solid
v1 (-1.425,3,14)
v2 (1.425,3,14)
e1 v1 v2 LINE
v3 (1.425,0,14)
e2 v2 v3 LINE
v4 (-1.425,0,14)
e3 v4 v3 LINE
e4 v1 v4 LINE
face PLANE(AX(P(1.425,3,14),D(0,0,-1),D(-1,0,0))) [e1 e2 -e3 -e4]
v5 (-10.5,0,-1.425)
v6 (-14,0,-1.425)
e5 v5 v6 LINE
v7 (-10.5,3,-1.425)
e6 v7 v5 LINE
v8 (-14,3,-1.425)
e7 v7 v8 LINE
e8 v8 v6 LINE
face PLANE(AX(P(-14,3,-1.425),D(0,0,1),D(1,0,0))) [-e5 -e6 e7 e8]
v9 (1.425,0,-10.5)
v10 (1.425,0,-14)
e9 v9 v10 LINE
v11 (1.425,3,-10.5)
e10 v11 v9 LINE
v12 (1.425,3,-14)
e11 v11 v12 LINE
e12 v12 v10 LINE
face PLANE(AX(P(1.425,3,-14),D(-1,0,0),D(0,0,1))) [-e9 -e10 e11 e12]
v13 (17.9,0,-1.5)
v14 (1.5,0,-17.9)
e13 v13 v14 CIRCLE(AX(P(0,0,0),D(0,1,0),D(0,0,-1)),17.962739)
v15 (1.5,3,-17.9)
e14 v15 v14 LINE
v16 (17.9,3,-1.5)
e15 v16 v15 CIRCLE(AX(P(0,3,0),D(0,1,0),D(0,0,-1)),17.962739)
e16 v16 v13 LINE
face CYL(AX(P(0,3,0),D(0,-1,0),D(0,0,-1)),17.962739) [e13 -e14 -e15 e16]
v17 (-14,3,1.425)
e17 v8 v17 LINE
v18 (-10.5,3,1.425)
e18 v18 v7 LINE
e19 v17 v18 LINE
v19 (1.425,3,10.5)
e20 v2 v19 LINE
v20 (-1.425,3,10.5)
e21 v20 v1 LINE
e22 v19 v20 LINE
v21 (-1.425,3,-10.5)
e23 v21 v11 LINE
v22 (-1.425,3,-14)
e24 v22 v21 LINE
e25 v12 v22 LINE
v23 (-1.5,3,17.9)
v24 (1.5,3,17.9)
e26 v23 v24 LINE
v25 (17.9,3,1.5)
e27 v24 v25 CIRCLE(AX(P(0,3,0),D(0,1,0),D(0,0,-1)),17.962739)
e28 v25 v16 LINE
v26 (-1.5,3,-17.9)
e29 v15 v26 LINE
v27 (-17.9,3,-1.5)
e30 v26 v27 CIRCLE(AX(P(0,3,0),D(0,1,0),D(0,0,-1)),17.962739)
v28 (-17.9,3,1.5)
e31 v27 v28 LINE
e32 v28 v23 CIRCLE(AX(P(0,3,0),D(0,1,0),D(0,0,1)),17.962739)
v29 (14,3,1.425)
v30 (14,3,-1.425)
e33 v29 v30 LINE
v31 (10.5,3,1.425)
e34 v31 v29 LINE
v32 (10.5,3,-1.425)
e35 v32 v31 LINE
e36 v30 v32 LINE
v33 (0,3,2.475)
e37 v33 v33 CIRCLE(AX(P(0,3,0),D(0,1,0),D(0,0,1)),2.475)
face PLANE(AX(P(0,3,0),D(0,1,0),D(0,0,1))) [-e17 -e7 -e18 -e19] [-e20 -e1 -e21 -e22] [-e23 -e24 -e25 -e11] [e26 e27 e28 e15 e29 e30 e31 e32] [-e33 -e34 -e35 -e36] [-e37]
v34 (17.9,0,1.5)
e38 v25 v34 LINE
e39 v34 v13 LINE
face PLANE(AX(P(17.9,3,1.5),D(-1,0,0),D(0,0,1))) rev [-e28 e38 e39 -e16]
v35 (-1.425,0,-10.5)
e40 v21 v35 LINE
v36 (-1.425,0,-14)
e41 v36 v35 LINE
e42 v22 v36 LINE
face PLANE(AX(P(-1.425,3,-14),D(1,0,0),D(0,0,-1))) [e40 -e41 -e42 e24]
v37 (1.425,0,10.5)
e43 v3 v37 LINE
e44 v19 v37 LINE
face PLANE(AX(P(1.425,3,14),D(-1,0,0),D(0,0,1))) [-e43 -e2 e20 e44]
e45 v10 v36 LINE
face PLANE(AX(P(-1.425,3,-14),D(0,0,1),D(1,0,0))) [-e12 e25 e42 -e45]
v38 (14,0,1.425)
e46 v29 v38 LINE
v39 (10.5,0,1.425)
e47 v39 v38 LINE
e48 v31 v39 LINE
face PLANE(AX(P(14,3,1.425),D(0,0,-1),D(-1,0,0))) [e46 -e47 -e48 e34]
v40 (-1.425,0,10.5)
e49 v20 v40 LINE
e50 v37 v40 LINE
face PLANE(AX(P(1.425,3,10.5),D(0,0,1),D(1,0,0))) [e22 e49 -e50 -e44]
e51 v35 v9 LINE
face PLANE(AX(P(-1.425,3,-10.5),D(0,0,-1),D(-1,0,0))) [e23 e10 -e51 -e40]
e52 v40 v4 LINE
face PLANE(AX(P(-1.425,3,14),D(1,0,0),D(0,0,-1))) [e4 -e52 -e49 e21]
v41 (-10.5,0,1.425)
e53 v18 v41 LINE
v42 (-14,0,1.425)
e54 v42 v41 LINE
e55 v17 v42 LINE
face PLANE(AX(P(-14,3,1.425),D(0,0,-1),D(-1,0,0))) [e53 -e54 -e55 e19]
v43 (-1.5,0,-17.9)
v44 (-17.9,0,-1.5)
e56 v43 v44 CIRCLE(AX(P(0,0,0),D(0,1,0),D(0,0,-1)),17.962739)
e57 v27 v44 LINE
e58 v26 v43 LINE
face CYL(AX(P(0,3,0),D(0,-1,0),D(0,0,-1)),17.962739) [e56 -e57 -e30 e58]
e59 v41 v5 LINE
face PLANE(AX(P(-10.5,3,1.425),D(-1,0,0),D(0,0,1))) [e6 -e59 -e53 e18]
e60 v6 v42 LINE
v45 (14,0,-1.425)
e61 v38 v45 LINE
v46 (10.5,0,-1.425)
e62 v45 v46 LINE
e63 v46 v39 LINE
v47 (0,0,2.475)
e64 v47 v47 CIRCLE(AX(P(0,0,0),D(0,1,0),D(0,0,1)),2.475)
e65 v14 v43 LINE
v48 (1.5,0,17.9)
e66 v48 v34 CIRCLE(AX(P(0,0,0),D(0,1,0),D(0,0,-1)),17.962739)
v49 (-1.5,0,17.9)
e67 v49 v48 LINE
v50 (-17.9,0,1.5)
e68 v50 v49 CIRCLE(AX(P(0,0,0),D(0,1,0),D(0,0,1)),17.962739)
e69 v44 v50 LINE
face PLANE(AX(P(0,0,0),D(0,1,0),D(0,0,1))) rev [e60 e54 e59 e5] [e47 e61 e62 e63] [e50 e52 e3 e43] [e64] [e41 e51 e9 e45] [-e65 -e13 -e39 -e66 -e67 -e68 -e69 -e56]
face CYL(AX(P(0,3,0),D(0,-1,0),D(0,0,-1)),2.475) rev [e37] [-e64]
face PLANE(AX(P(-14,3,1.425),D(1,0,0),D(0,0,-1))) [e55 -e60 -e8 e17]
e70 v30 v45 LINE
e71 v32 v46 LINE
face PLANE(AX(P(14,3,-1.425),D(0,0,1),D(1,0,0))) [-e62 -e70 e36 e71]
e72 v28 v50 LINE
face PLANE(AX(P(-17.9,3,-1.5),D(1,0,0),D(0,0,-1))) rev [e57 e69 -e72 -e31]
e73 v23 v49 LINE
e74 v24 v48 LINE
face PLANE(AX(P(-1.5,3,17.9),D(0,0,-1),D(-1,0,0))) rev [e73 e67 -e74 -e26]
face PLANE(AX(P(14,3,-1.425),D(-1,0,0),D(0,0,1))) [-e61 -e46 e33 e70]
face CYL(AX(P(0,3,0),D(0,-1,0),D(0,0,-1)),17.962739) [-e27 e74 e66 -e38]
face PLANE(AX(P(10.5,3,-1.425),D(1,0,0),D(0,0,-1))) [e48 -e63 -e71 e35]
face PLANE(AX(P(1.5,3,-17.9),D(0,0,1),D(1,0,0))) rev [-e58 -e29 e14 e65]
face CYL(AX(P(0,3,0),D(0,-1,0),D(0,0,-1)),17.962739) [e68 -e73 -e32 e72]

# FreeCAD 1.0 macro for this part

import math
import FreeCAD as App
import Part
import Sketcher

doc = App.newDocument("Part")
params = doc.addObject("Spreadsheet::Sheet", "Params")
for row, (alias, value) in enumerate([
    ("sketch1_diameter", "4.95 mm"),
    ("sketch1_width", "3 mm"),
    ("sketch1_width2", "3.5 mm"),
    ("sketch1_width3", "2.85 mm"),
    ("pad1_length", "3 mm"),
], start=1):
    params.set(f"A{row}", alias)
    params.set(f"B{row}", "=" + value)
    params.setAlias(f"B{row}", alias)

body = doc.addObject("PartDesign::Body", "Body")

sketch1 = doc.addObject("Sketcher::SketchObject", "Sketch")
body.addObject(sketch1)
sketch1.AttachmentSupport = (doc.XZ_Plane, [""])
sketch1.MapMode = "FlatFace"
sketch1.addGeometry(Part.LineSegment(App.Vector(-1.5, 17.9, 0), App.Vector(1.5, 17.9, 0)), False)
sketch1.addGeometry(Part.ArcOfCircle(Part.Circle(App.Vector(0, 0, 0), App.Vector(0, 0, 1), 18), math.radians(5), math.radians(85)), False)
sketch1.addGeometry(Part.LineSegment(App.Vector(17.9, 1.5, 0), App.Vector(17.9, -1.5, 0)), False)
sketch1.addGeometry(Part.ArcOfCircle(Part.Circle(App.Vector(0, 0, 0), App.Vector(0, 0, 1), 18), math.radians(-85), math.radians(-5)), False)
sketch1.addGeometry(Part.LineSegment(App.Vector(1.5, -17.9, 0), App.Vector(-1.5, -17.9, 0)), False)
sketch1.addGeometry(Part.ArcOfCircle(Part.Circle(App.Vector(0, 0, 0), App.Vector(0, 0, 1), 18), math.radians(-175), math.radians(-95)), False)
sketch1.addGeometry(Part.LineSegment(App.Vector(-17.9, -1.5, 0), App.Vector(-17.9, 1.5, 0)), False)
sketch1.addGeometry(Part.ArcOfCircle(Part.Circle(App.Vector(0, 0, 0), App.Vector(0, 0, 1), 18), math.radians(95), math.radians(175)), False)
sketch1.addGeometry(Part.LineSegment(App.Vector(1.4, 14, 0), App.Vector(-1.4, 14, 0)), False)
sketch1.addGeometry(Part.LineSegment(App.Vector(-1.4, 14, 0), App.Vector(-1.4, 10.5, 0)), False)
sketch1.addGeometry(Part.LineSegment(App.Vector(-1.4, 10.5, 0), App.Vector(1.4, 10.5, 0)), False)
sketch1.addGeometry(Part.LineSegment(App.Vector(1.4, 10.5, 0), App.Vector(1.4, 14, 0)), False)
sketch1.addGeometry(Part.LineSegment(App.Vector(-10.5, 1.4, 0), App.Vector(-14, 1.4, 0)), False)
sketch1.addGeometry(Part.LineSegment(App.Vector(-14, 1.4, 0), App.Vector(-14, -1.4, 0)), False)
sketch1.addGeometry(Part.LineSegment(App.Vector(-14, -1.4, 0), App.Vector(-10.5, -1.4, 0)), False)
sketch1.addGeometry(Part.LineSegment(App.Vector(-10.5, -1.4, 0), App.Vector(-10.5, 1.4, 0)), False)
sketch1.addGeometry(Part.Circle(App.Vector(0, 0, 0), App.Vector(0, 0, 1), 2.5), False)
sketch1.addGeometry(Part.LineSegment(App.Vector(14, 1.4, 0), App.Vector(10.5, 1.4, 0)), False)
sketch1.addGeometry(Part.LineSegment(App.Vector(10.5, 1.4, 0), App.Vector(10.5, -1.4, 0)), False)
sketch1.addGeometry(Part.LineSegment(App.Vector(10.5, -1.4, 0), App.Vector(14, -1.4, 0)), False)
sketch1.addGeometry(Part.LineSegment(App.Vector(14, -1.4, 0), App.Vector(14, 1.4, 0)), False)
sketch1.addGeometry(Part.LineSegment(App.Vector(1.4, -10.5, 0), App.Vector(-1.4, -10.5, 0)), False)
sketch1.addGeometry(Part.LineSegment(App.Vector(-1.4, -10.5, 0), App.Vector(-1.4, -14, 0)), False)
sketch1.addGeometry(Part.LineSegment(App.Vector(-1.4, -14, 0), App.Vector(1.4, -14, 0)), False)
sketch1.addGeometry(Part.LineSegment(App.Vector(1.4, -14, 0), App.Vector(1.4, -10.5, 0)), False)
sketch1.addConstraint(Sketcher.Constraint("Coincident", 0, 2, 1, 2))
sketch1.addConstraint(Sketcher.Constraint("Coincident", 1, 1, 2, 1))
sketch1.addConstraint(Sketcher.Constraint("Coincident", 2, 2, 3, 2))
sketch1.addConstraint(Sketcher.Constraint("Coincident", 3, 1, 4, 1))
sketch1.addConstraint(Sketcher.Constraint("Coincident", 4, 2, 5, 2))
sketch1.addConstraint(Sketcher.Constraint("Coincident", 5, 1, 6, 1))
sketch1.addConstraint(Sketcher.Constraint("Coincident", 6, 2, 7, 2))
sketch1.addConstraint(Sketcher.Constraint("Coincident", 7, 1, 0, 1))
sketch1.addConstraint(Sketcher.Constraint("Coincident", 8, 2, 9, 1))
sketch1.addConstraint(Sketcher.Constraint("Coincident", 9, 2, 10, 1))
sketch1.addConstraint(Sketcher.Constraint("Coincident", 10, 2, 11, 1))
sketch1.addConstraint(Sketcher.Constraint("Coincident", 11, 2, 8, 1))
sketch1.addConstraint(Sketcher.Constraint("Coincident", 12, 2, 13, 1))
sketch1.addConstraint(Sketcher.Constraint("Coincident", 13, 2, 14, 1))
sketch1.addConstraint(Sketcher.Constraint("Coincident", 14, 2, 15, 1))
sketch1.addConstraint(Sketcher.Constraint("Coincident", 15, 2, 12, 1))
sketch1.addConstraint(Sketcher.Constraint("Coincident", 17, 2, 18, 1))
sketch1.addConstraint(Sketcher.Constraint("Coincident", 18, 2, 19, 1))
sketch1.addConstraint(Sketcher.Constraint("Coincident", 19, 2, 20, 1))
sketch1.addConstraint(Sketcher.Constraint("Coincident", 20, 2, 17, 1))
sketch1.addConstraint(Sketcher.Constraint("Coincident", 21, 2, 22, 1))
sketch1.addConstraint(Sketcher.Constraint("Coincident", 22, 2, 23, 1))
sketch1.addConstraint(Sketcher.Constraint("Coincident", 23, 2, 24, 1))
sketch1.addConstraint(Sketcher.Constraint("Coincident", 24, 2, 21, 1))
sketch1.addConstraint(Sketcher.Constraint("Horizontal", 0))
sketch1.addConstraint(Sketcher.Constraint("Vertical", 2))
sketch1.addConstraint(Sketcher.Constraint("Horizontal", 4))
sketch1.addConstraint(Sketcher.Constraint("Vertical", 6))
sketch1.addConstraint(Sketcher.Constraint("Horizontal", 8))
sketch1.addConstraint(Sketcher.Constraint("Vertical", 9))
sketch1.addConstraint(Sketcher.Constraint("Horizontal", 10))
sketch1.addConstraint(Sketcher.Constraint("Vertical", 11))
sketch1.addConstraint(Sketcher.Constraint("Horizontal", 12))
sketch1.addConstraint(Sketcher.Constraint("Vertical", 13))
sketch1.addConstraint(Sketcher.Constraint("Horizontal", 14))
sketch1.addConstraint(Sketcher.Constraint("Vertical", 15))
sketch1.addConstraint(Sketcher.Constraint("Horizontal", 17))
sketch1.addConstraint(Sketcher.Constraint("Vertical", 18))
sketch1.addConstraint(Sketcher.Constraint("Horizontal", 19))
sketch1.addConstraint(Sketcher.Constraint("Vertical", 20))
sketch1.addConstraint(Sketcher.Constraint("Horizontal", 21))
sketch1.addConstraint(Sketcher.Constraint("Vertical", 22))
sketch1.addConstraint(Sketcher.Constraint("Horizontal", 23))
sketch1.addConstraint(Sketcher.Constraint("Vertical", 24))
sketch1.addConstraint(Sketcher.Constraint("Coincident", 1, 3, -1, 1))
sketch1.addConstraint(Sketcher.Constraint("Coincident", 3, 3, -1, 1))
sketch1.addConstraint(Sketcher.Constraint("Coincident", 5, 3, -1, 1))
sketch1.addConstraint(Sketcher.Constraint("Coincident", 7, 3, -1, 1))
sketch1.addConstraint(Sketcher.Constraint("Coincident", 16, 3, -1, 1))
sketch1.addConstraint(Sketcher.Constraint("Equal", 1, 3))
sketch1.addConstraint(Sketcher.Constraint("Equal", 3, 5))
sketch1.addConstraint(Sketcher.Constraint("Equal", 5, 7))
sketch1.addConstraint(Sketcher.Constraint("Symmetric", 14, 2, 17, 2, -1, 1))
sketch1.addConstraint(Sketcher.Constraint("Symmetric", 12, 2, 19, 2, -1, 1))
sketch1.addConstraint(Sketcher.Constraint("Symmetric", 10, 2, 21, 2, -1, 1))
sketch1.addConstraint(Sketcher.Constraint("Symmetric", 8, 2, 23, 2, -1, 1))
sketch1.addConstraint(Sketcher.Constraint("Horizontal", 2, 2, 5, 1))
sketch1.addConstraint(Sketcher.Constraint("Horizontal", 15, 2, 17, 2))
sketch1.addConstraint(Sketcher.Constraint("Vertical", 0, 2, 3, 1))
sketch1.addConstraint(Sketcher.Constraint("Vertical", 9, 2, 21, 2))
sketch1.addConstraint(Sketcher.Constraint("Equal", 4, 2))
sketch1.addConstraint(Sketcher.Constraint("Equal", 19, 9))
sketch1.addConstraint(Sketcher.Constraint("Equal", 23, 13))
sketch1.addConstraint(Sketcher.Constraint("Diameter", 16, 4.95))
sketch1.addConstraint(Sketcher.Constraint("DistanceX", 0, 1, 0, 2, 3.0))
sketch1.addConstraint(Sketcher.Constraint("DistanceX", 12, 2, 12, 1, 3.5))
sketch1.addConstraint(Sketcher.Constraint("DistanceY", -1, 1, 8, 2, 14.0))
sketch1.addConstraint(Sketcher.Constraint("DistanceX", 12, 2, -1, 1, 14.0))
sketch1.addConstraint(Sketcher.Constraint("DistanceX", 8, 2, 8, 1, 2.85))
sketch1.addConstraint(Sketcher.Constraint("DistanceY", -1, 1, 0, 2, 17.9))
sketch1.setExpression("Constraints[63]", "Params.sketch1_diameter")
sketch1.setExpression("Constraints[64]", "Params.sketch1_width")
sketch1.setExpression("Constraints[65]", "Params.sketch1_width2")
sketch1.setExpression("Constraints[68]", "Params.sketch1_width3")
pad1 = doc.addObject("PartDesign::Pad", "Pad")
body.addObject(pad1)
pad1.Profile = sketch1
pad1.setExpression("Length", "Params.pad1_length")
pad1.Reversed = True

doc.recompute()
